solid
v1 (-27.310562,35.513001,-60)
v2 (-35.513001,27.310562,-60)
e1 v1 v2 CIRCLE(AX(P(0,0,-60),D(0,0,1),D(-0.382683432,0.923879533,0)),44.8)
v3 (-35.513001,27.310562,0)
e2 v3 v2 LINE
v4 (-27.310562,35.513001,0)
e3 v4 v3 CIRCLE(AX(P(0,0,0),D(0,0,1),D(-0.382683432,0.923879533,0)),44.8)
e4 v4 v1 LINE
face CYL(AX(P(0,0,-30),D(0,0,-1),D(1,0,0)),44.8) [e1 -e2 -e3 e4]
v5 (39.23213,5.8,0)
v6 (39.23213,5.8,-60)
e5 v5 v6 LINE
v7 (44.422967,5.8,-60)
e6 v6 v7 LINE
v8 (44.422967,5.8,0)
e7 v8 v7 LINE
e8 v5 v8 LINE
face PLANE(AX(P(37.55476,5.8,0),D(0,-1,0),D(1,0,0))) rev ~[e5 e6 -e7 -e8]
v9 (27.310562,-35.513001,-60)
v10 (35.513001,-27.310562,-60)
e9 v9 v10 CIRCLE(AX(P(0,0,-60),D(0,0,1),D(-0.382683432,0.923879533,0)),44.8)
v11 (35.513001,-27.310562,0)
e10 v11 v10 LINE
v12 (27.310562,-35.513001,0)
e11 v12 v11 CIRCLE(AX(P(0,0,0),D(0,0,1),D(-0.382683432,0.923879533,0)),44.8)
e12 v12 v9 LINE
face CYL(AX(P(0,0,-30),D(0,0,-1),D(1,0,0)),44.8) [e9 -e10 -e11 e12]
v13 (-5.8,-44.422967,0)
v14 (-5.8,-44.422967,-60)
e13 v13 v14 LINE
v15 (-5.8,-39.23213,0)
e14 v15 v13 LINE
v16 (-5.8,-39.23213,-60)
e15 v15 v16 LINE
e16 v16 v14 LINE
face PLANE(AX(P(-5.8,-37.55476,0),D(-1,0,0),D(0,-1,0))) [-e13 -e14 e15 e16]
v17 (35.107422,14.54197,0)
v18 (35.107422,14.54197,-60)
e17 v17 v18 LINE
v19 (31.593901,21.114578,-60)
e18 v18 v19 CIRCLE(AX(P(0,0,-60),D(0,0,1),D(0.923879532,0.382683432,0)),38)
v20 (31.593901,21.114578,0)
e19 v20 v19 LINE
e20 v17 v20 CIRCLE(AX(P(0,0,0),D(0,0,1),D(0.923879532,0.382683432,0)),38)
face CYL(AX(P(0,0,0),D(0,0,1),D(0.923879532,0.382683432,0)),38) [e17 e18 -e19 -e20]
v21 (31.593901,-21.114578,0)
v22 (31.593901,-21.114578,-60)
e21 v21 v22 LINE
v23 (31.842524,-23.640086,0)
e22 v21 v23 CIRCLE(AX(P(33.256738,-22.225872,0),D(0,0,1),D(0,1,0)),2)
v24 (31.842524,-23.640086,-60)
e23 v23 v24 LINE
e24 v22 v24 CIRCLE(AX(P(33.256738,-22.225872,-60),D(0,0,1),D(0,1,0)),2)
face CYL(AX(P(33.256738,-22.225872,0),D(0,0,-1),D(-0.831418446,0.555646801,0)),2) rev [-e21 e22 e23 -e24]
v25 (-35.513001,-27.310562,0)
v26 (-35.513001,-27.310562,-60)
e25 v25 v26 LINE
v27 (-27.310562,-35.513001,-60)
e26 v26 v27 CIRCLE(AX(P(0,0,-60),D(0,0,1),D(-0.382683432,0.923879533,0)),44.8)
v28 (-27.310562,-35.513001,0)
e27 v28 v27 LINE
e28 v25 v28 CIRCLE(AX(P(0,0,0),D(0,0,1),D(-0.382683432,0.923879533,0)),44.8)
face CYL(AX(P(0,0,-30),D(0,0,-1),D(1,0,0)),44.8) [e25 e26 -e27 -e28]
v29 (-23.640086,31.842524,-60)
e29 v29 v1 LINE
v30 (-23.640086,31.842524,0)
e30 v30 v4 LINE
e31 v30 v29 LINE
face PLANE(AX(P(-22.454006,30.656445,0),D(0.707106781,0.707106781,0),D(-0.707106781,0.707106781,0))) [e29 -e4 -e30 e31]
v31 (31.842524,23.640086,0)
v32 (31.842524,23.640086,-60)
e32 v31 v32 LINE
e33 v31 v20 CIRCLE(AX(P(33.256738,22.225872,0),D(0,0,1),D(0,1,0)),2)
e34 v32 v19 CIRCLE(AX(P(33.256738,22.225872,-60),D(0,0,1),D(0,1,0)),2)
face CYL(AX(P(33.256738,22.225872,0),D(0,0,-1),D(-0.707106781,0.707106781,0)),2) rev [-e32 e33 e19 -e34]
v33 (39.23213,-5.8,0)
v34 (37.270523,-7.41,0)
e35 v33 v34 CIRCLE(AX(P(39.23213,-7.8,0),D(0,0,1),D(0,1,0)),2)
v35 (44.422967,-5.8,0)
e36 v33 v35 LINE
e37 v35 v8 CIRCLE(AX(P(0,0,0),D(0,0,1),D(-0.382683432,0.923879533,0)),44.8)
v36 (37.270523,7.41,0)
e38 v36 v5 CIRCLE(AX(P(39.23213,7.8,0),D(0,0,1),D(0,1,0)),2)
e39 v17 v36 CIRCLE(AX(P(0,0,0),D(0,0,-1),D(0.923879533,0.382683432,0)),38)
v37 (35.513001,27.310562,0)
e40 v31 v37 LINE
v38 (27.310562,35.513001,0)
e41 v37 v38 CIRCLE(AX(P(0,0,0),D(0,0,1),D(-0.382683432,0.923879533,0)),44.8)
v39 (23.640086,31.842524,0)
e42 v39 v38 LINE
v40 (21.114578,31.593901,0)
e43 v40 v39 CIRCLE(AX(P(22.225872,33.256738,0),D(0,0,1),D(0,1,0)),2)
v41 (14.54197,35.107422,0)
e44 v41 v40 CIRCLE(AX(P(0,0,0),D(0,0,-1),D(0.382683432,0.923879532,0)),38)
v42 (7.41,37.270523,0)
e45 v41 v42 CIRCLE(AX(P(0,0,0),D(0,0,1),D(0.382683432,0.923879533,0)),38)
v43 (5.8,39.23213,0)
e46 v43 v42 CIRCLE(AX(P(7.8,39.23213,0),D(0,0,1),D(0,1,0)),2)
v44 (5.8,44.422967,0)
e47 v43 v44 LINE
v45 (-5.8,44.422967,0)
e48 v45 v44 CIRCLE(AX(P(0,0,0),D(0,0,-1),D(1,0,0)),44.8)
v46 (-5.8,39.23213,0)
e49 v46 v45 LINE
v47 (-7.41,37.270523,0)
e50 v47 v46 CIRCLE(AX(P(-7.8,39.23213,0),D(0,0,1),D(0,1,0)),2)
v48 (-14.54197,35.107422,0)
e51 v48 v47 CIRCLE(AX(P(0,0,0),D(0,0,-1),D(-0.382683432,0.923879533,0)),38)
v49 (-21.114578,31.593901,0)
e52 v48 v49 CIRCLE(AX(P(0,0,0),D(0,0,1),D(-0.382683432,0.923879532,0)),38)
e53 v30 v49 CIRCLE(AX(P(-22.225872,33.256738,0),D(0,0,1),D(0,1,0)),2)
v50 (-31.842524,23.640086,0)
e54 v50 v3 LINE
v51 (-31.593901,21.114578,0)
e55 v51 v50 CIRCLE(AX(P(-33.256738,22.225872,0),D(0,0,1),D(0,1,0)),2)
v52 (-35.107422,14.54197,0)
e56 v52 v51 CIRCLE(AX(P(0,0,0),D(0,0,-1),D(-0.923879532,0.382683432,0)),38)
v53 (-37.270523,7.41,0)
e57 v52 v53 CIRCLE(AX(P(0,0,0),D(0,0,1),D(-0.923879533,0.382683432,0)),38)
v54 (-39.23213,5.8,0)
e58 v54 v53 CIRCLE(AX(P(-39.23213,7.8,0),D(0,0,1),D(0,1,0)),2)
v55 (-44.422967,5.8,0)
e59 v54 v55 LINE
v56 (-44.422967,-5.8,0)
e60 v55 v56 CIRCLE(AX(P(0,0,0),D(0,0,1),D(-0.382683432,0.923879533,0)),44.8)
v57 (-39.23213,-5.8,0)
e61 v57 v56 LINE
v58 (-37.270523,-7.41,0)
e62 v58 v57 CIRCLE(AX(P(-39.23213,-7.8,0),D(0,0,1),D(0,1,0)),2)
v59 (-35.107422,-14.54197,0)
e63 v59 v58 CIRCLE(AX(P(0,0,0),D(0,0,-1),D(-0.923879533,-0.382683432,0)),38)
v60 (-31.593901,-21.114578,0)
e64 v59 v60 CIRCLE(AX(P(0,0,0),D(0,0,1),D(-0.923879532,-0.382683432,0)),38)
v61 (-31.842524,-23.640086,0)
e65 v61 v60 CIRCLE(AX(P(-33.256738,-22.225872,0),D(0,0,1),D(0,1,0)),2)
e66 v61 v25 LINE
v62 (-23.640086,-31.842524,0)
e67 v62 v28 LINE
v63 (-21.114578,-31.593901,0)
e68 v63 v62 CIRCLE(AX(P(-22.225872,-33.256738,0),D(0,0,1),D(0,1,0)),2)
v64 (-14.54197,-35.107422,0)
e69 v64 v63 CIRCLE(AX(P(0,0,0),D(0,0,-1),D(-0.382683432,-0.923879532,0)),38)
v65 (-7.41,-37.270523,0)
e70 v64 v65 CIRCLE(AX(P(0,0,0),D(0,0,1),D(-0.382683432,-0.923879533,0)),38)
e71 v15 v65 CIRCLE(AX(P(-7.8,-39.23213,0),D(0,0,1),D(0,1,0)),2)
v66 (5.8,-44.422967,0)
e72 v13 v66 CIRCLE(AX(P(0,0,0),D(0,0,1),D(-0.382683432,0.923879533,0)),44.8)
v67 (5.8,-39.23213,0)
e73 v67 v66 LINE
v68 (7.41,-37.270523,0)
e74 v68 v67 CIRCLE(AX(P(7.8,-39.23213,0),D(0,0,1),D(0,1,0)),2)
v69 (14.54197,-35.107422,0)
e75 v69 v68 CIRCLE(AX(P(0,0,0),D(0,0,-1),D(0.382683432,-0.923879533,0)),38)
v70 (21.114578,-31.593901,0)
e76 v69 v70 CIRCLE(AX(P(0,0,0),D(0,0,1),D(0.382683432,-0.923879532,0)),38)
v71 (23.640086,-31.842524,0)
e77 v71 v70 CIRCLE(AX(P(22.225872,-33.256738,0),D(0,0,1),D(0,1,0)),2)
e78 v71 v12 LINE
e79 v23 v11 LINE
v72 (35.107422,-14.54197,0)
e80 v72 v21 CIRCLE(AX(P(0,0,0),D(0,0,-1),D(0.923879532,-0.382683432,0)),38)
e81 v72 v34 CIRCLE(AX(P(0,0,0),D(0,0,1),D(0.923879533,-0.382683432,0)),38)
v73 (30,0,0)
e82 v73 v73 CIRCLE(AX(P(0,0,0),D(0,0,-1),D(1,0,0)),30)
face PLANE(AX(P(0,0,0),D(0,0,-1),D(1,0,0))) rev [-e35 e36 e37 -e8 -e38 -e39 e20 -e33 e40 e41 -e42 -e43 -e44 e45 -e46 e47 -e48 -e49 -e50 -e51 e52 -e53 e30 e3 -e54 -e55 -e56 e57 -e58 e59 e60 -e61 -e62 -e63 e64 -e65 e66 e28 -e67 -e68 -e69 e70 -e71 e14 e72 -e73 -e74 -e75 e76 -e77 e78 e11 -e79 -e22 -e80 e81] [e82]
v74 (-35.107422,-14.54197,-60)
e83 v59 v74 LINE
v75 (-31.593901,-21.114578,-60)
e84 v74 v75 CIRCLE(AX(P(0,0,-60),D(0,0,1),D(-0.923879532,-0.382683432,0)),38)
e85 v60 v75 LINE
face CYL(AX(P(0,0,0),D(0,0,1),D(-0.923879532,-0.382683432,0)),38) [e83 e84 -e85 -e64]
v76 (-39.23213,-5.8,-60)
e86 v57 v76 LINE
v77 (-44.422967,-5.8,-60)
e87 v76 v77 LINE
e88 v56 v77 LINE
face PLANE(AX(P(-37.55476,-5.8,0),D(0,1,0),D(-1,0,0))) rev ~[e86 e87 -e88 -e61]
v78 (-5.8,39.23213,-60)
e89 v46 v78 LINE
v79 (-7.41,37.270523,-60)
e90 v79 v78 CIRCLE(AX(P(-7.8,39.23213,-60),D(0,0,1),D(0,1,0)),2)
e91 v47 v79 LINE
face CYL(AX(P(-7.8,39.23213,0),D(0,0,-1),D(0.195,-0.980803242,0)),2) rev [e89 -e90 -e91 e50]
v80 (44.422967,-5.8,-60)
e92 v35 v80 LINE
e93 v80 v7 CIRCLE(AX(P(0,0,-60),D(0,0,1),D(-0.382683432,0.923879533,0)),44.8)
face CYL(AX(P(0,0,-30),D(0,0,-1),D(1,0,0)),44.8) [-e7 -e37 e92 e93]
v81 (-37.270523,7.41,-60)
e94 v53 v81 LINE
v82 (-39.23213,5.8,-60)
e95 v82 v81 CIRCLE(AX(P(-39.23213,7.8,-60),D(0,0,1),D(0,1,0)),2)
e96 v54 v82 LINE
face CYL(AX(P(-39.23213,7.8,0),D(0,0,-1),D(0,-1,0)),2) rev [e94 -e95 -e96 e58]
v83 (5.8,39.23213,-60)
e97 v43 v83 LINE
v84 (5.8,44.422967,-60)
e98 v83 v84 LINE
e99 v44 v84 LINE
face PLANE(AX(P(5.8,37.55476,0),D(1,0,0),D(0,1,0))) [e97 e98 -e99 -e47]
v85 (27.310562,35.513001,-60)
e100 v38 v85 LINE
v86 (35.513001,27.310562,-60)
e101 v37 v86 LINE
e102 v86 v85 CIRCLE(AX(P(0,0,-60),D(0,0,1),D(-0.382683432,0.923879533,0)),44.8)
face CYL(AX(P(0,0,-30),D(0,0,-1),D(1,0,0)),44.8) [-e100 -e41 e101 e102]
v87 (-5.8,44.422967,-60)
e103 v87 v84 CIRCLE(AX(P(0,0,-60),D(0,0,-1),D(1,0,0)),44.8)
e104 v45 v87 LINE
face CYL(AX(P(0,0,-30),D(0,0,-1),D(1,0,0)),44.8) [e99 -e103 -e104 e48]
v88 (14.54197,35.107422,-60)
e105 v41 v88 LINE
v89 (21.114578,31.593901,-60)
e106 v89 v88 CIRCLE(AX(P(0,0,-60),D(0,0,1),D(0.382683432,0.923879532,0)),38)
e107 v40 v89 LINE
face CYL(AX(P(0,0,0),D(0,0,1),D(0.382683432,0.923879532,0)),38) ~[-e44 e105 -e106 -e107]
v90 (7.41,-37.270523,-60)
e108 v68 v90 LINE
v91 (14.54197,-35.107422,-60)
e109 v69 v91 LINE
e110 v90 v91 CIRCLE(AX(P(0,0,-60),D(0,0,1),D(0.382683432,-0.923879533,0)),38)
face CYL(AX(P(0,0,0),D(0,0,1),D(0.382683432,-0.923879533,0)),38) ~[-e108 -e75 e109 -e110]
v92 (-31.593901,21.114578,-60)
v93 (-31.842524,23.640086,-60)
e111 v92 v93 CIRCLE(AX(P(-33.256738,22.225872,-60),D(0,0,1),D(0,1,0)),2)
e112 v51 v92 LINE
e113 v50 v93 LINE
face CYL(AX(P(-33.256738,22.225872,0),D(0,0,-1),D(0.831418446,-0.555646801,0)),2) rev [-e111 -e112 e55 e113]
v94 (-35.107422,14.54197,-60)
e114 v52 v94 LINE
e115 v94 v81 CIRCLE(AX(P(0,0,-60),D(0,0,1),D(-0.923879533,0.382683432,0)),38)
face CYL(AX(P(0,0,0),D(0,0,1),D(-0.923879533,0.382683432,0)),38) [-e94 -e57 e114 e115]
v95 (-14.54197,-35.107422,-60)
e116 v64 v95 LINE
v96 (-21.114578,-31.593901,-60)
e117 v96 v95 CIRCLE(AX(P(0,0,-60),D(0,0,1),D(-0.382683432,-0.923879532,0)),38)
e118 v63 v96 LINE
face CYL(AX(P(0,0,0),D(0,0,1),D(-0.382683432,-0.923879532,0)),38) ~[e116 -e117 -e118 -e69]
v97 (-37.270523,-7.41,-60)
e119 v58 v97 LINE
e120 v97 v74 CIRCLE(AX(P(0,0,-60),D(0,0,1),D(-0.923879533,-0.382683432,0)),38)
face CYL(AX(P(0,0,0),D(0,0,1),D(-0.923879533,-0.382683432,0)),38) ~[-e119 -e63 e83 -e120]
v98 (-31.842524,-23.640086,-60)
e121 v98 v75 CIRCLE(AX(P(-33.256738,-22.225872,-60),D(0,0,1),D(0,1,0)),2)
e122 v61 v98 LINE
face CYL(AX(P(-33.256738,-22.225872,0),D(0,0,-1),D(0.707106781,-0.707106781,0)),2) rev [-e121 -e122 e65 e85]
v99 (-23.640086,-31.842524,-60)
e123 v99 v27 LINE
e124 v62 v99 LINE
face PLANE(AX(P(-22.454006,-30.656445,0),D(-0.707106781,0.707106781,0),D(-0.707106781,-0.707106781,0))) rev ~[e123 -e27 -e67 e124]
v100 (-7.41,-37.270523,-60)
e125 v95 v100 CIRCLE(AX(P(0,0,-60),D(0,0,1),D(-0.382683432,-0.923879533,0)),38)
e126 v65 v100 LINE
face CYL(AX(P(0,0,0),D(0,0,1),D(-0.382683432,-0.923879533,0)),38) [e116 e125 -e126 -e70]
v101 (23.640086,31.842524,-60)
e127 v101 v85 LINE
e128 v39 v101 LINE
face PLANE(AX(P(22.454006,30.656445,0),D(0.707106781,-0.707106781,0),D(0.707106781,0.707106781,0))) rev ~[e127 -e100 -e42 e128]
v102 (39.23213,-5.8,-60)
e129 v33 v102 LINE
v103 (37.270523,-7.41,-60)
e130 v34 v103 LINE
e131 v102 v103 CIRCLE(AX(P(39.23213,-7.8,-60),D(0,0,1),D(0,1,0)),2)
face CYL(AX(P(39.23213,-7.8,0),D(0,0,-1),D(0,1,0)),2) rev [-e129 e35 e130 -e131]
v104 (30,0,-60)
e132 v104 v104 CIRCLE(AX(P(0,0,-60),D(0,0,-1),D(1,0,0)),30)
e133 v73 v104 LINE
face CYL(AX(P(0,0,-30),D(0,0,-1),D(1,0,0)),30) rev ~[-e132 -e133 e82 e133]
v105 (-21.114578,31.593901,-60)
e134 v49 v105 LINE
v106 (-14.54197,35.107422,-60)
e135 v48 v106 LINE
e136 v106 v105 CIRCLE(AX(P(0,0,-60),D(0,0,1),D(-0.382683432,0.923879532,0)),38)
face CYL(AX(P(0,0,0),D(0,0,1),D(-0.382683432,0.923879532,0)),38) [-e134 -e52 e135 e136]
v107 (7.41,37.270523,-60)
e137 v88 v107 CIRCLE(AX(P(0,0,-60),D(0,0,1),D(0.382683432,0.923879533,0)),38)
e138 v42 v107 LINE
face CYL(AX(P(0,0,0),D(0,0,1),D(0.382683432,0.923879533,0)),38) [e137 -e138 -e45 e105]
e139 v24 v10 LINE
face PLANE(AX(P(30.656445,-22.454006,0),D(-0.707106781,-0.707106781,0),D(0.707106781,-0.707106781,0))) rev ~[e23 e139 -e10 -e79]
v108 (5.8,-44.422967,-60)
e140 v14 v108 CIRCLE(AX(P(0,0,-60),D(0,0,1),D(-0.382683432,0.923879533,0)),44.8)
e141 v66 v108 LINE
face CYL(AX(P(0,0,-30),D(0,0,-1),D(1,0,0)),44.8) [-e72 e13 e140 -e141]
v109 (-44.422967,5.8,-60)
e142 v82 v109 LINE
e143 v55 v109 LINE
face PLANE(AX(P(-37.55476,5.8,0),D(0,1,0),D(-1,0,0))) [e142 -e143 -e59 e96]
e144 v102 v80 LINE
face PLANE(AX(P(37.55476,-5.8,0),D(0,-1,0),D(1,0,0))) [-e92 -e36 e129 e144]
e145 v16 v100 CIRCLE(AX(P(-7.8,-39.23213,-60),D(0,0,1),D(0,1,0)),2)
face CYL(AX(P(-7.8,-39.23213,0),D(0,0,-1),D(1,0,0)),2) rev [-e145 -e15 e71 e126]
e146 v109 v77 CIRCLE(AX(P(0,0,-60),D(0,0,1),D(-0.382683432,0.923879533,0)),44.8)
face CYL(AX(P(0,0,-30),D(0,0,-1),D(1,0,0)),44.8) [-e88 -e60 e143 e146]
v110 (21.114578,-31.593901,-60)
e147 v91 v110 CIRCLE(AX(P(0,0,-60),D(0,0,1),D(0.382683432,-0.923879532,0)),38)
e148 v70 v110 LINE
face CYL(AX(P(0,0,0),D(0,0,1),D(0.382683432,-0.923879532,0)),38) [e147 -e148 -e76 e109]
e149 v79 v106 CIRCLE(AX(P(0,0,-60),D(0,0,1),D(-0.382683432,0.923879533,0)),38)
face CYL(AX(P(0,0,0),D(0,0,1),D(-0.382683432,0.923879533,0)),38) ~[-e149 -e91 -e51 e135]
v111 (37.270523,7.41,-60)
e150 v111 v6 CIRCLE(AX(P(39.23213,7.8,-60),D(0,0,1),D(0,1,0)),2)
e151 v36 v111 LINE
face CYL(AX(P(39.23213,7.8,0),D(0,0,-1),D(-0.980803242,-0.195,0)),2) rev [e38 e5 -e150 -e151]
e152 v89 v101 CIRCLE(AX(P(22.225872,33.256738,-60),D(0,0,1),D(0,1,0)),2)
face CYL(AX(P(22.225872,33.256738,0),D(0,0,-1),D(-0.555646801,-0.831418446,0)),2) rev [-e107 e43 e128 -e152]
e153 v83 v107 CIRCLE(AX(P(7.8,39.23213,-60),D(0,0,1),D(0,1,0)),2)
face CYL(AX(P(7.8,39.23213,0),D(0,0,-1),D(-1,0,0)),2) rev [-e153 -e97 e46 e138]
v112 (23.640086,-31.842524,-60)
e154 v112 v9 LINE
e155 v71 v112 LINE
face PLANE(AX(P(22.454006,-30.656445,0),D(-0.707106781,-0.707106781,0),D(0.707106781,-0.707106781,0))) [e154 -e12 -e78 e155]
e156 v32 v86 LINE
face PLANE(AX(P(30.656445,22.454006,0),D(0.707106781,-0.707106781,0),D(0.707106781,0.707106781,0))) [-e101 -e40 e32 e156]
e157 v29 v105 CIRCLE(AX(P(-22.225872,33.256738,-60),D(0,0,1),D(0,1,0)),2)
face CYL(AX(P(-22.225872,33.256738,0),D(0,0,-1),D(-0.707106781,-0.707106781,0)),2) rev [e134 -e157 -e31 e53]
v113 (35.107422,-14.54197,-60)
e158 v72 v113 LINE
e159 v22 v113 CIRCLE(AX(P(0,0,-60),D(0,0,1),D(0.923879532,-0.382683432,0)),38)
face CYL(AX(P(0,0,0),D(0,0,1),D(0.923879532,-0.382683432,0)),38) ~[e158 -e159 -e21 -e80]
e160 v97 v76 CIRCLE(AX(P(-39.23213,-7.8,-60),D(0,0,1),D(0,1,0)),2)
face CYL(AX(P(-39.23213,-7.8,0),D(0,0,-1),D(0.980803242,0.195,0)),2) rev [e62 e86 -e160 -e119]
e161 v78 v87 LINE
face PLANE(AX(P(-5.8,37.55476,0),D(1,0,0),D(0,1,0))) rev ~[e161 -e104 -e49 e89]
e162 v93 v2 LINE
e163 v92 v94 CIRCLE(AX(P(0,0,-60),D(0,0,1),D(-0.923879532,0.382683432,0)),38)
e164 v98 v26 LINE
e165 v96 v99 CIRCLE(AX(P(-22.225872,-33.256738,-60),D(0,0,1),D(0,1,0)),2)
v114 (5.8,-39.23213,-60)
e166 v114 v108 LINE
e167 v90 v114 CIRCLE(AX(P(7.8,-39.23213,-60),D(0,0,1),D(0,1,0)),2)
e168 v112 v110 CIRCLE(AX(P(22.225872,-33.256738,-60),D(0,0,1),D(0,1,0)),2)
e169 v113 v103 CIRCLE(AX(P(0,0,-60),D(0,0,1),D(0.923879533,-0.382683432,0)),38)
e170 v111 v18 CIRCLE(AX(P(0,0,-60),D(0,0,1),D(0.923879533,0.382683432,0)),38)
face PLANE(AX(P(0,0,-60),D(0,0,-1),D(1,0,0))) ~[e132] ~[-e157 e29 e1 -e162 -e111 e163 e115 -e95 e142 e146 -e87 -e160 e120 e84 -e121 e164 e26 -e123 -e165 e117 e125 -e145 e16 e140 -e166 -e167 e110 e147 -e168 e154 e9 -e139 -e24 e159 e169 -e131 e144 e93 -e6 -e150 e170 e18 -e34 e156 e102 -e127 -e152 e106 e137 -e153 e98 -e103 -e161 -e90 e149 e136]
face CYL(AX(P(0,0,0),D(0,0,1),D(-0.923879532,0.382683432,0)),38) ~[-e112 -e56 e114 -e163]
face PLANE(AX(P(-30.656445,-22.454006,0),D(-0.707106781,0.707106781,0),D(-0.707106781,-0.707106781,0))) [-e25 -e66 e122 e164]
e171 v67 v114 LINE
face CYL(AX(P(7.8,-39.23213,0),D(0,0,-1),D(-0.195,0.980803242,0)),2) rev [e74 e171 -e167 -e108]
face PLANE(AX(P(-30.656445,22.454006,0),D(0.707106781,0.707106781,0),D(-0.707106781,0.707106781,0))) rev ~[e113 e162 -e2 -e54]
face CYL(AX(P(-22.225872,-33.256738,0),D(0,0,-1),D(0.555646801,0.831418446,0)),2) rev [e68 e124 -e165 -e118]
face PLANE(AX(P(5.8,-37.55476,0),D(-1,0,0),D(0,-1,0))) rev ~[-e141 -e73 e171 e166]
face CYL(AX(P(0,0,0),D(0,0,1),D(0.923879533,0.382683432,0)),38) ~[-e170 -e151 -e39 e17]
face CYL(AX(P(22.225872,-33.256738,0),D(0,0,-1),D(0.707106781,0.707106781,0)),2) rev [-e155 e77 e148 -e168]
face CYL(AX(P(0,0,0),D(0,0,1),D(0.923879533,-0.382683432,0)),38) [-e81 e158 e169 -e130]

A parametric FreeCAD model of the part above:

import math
import FreeCAD as App
import Part
import Sketcher

V = App.Vector
Q = App.Units.Quantity


def edges_at(feature, points):
    """Names of the edges that pass closest to the given points."""
    edges = feature.Shape.Edges
    near = lambda p: min(range(len(edges)), key=lambda i: edges[i].distToShape(Part.Vertex(*p))[0])
    return sorted({f"Edge{near(p) + 1}" for p in points})


def add_polygon(sketch, points):
    """Adds a closed chain of lines whose ends are joined by coincident constraints."""
    first, n = sketch.GeometryCount, len(points)
    for a, b in zip(points, points[1:] + points[:1]):
        sketch.addGeometry(Part.LineSegment(App.Vector(*a, 0), App.Vector(*b, 0)), False)
    for i in range(n):
        sketch.addConstraint(Sketcher.Constraint("Coincident", first + i, 2, first + (i + 1) % n, 1))

doc = App.newDocument("Part")
body = doc.addObject("PartDesign::Body", "Body")

sketch1 = body.newObject("Sketcher::SketchObject", "Sketch")
sketch1.AttachmentSupport = (doc.getObject("YZ_Plane"), [""])
sketch1.MapMode = "FlatFace"
add_polygon(sketch1, [(45, 0), (30, 0), (30, -60), (45, -60)])
sketch1.addConstraint([
    Sketcher.Constraint("Horizontal", 0),
    Sketcher.Constraint("Vertical", 1),
    Sketcher.Constraint("Horizontal", 2),
    Sketcher.Constraint("Vertical", 3),
    Sketcher.Constraint("PointOnObject", 0, 2, -1),
    Sketcher.Constraint("DistanceY", 1, 2, 1, 1, Q("60 mm")),
    Sketcher.Constraint("DistanceX", 0, 2, 0, 1, Q("14.8 mm")),
    Sketcher.Constraint("DistanceX", -1, 1, 0, 2, Q("30 mm")),
])
revolution = body.newObject("PartDesign::Revolution", "Revolution")
revolution.Profile = sketch1
revolution.ReferenceAxis = (sketch1, ["V_Axis"])
revolution.Angle = 360

sketch2 = body.newObject("Sketcher::SketchObject", "Sketch001")
sketch2.AttachmentSupport = (doc.getObject("XY_Plane"), [""])
sketch2.MapMode = "FlatFace"
sketch2.addGeometry([
    Part.LineSegment(V(-6, 38, 0), V(-6, 44, 0)),
    Part.ArcOfCircle(Part.Circle(V(0, 0, 0), V(0, 0, 1), 45), math.radians(97.44), math.radians(112.5)),
    Part.LineSegment(V(-17, 41, 0), V(-15, 35, 0)),
    Part.ArcOfCircle(Part.Circle(V(0, 0, 0), V(0, 0, 1), 38), math.radians(98.78), math.radians(112.5)),
    Part.LineSegment(V(6, 44, 0), V(6, 38, 0)),
    Part.ArcOfCircle(Part.Circle(V(0, 0, 0), V(0, 0, 1), 38), math.radians(67.5), math.radians(81.22)),
    Part.LineSegment(V(15, 35, 0), V(17, 41, 0)),
    Part.ArcOfCircle(Part.Circle(V(0, 0, 0), V(0, 0, 1), 45), math.radians(67.5), math.radians(82.56)),
], False)
sketch2.addConstraint([
    Sketcher.Constraint("Coincident", 0, 2, 1, 1),
    Sketcher.Constraint("Coincident", 1, 2, 2, 1),
    Sketcher.Constraint("Coincident", 2, 2, 3, 2),
    Sketcher.Constraint("Coincident", 3, 1, 0, 1),
    Sketcher.Constraint("Coincident", 4, 2, 5, 2),
    Sketcher.Constraint("Coincident", 5, 1, 6, 1),
    Sketcher.Constraint("Coincident", 6, 2, 7, 1),
    Sketcher.Constraint("Coincident", 7, 2, 4, 1),
    Sketcher.Constraint("Vertical", 0),
    Sketcher.Constraint("Vertical", 4),
    Sketcher.Constraint("Coincident", 1, 3, -1, 1),
    Sketcher.Constraint("Coincident", 3, 3, -1, 1),
    Sketcher.Constraint("Coincident", 5, 3, -1, 1),
    Sketcher.Constraint("Coincident", 7, 3, -1, 1),
    Sketcher.Constraint("Equal", 3, 5),
    Sketcher.Constraint("Equal", 1, 7),
    Sketcher.Constraint("Horizontal", 3, 1, 4, 2),
    Sketcher.Constraint("Horizontal", 2, 2, 5, 1),
    Sketcher.Constraint("Horizontal", 1, 2, 6, 2),
    Sketcher.Constraint("Radius", 3, Q("38 mm")),
    Sketcher.Constraint("Radius", 1, Q("44.8 mm")),
    Sketcher.Constraint("Angle", 2, Q("-67.5 deg")),
    Sketcher.Constraint("DistanceX", 0, 2, -1, 1, Q("5.8 mm")),
    Sketcher.Constraint("DistanceX", 2, 2, -1, 1, Q("14.54197 mm")),
])
pocket1 = body.newObject("PartDesign::Pocket", "Pocket")
pocket1.Profile = sketch2
pocket1.Type = "ThroughAll"
doc.recompute()

fillet = body.newObject("PartDesign::Fillet", "Fillet")
fillet.Base = (pocket1, edges_at(pocket1, [(-5.8, 37.555, -30), (5.8, 37.555, -30)]))
fillet.Radius = 2
doc.recompute()

polarpattern = body.newObject("PartDesign::PolarPattern", "PolarPattern")
polarpattern.Originals = [pocket1]
polarpattern.Axis = (doc.getObject("Z_Axis"), [""])
polarpattern.Angle = 360
polarpattern.Occurrences = 8
body.Tip = polarpattern
doc.recompute()

fillet2 = body.newObject("PartDesign::Fillet", "Fillet001")
fillet2.Base = (polarpattern, edges_at(polarpattern, [
    (-30.656, 22.454, -30),
    (-22.454, 30.656, -30),
    (-37.555, -5.8, -30),
    (-37.555, 5.8, -30),
    (-22.454, -30.656, -30),
    (-30.656, -22.454, -30),
    (5.8, -37.555, -30),
    (-5.8, -37.555, -30),
    (30.656, -22.454, -30),
    (22.454, -30.656, -30),
    (37.555, 5.8, -30),
    (37.555, -5.8, -30),
    (22.454, 30.656, -30),
    (30.656, 22.454, -30),
]))
fillet2.Radius = 2

doc.recompute()
